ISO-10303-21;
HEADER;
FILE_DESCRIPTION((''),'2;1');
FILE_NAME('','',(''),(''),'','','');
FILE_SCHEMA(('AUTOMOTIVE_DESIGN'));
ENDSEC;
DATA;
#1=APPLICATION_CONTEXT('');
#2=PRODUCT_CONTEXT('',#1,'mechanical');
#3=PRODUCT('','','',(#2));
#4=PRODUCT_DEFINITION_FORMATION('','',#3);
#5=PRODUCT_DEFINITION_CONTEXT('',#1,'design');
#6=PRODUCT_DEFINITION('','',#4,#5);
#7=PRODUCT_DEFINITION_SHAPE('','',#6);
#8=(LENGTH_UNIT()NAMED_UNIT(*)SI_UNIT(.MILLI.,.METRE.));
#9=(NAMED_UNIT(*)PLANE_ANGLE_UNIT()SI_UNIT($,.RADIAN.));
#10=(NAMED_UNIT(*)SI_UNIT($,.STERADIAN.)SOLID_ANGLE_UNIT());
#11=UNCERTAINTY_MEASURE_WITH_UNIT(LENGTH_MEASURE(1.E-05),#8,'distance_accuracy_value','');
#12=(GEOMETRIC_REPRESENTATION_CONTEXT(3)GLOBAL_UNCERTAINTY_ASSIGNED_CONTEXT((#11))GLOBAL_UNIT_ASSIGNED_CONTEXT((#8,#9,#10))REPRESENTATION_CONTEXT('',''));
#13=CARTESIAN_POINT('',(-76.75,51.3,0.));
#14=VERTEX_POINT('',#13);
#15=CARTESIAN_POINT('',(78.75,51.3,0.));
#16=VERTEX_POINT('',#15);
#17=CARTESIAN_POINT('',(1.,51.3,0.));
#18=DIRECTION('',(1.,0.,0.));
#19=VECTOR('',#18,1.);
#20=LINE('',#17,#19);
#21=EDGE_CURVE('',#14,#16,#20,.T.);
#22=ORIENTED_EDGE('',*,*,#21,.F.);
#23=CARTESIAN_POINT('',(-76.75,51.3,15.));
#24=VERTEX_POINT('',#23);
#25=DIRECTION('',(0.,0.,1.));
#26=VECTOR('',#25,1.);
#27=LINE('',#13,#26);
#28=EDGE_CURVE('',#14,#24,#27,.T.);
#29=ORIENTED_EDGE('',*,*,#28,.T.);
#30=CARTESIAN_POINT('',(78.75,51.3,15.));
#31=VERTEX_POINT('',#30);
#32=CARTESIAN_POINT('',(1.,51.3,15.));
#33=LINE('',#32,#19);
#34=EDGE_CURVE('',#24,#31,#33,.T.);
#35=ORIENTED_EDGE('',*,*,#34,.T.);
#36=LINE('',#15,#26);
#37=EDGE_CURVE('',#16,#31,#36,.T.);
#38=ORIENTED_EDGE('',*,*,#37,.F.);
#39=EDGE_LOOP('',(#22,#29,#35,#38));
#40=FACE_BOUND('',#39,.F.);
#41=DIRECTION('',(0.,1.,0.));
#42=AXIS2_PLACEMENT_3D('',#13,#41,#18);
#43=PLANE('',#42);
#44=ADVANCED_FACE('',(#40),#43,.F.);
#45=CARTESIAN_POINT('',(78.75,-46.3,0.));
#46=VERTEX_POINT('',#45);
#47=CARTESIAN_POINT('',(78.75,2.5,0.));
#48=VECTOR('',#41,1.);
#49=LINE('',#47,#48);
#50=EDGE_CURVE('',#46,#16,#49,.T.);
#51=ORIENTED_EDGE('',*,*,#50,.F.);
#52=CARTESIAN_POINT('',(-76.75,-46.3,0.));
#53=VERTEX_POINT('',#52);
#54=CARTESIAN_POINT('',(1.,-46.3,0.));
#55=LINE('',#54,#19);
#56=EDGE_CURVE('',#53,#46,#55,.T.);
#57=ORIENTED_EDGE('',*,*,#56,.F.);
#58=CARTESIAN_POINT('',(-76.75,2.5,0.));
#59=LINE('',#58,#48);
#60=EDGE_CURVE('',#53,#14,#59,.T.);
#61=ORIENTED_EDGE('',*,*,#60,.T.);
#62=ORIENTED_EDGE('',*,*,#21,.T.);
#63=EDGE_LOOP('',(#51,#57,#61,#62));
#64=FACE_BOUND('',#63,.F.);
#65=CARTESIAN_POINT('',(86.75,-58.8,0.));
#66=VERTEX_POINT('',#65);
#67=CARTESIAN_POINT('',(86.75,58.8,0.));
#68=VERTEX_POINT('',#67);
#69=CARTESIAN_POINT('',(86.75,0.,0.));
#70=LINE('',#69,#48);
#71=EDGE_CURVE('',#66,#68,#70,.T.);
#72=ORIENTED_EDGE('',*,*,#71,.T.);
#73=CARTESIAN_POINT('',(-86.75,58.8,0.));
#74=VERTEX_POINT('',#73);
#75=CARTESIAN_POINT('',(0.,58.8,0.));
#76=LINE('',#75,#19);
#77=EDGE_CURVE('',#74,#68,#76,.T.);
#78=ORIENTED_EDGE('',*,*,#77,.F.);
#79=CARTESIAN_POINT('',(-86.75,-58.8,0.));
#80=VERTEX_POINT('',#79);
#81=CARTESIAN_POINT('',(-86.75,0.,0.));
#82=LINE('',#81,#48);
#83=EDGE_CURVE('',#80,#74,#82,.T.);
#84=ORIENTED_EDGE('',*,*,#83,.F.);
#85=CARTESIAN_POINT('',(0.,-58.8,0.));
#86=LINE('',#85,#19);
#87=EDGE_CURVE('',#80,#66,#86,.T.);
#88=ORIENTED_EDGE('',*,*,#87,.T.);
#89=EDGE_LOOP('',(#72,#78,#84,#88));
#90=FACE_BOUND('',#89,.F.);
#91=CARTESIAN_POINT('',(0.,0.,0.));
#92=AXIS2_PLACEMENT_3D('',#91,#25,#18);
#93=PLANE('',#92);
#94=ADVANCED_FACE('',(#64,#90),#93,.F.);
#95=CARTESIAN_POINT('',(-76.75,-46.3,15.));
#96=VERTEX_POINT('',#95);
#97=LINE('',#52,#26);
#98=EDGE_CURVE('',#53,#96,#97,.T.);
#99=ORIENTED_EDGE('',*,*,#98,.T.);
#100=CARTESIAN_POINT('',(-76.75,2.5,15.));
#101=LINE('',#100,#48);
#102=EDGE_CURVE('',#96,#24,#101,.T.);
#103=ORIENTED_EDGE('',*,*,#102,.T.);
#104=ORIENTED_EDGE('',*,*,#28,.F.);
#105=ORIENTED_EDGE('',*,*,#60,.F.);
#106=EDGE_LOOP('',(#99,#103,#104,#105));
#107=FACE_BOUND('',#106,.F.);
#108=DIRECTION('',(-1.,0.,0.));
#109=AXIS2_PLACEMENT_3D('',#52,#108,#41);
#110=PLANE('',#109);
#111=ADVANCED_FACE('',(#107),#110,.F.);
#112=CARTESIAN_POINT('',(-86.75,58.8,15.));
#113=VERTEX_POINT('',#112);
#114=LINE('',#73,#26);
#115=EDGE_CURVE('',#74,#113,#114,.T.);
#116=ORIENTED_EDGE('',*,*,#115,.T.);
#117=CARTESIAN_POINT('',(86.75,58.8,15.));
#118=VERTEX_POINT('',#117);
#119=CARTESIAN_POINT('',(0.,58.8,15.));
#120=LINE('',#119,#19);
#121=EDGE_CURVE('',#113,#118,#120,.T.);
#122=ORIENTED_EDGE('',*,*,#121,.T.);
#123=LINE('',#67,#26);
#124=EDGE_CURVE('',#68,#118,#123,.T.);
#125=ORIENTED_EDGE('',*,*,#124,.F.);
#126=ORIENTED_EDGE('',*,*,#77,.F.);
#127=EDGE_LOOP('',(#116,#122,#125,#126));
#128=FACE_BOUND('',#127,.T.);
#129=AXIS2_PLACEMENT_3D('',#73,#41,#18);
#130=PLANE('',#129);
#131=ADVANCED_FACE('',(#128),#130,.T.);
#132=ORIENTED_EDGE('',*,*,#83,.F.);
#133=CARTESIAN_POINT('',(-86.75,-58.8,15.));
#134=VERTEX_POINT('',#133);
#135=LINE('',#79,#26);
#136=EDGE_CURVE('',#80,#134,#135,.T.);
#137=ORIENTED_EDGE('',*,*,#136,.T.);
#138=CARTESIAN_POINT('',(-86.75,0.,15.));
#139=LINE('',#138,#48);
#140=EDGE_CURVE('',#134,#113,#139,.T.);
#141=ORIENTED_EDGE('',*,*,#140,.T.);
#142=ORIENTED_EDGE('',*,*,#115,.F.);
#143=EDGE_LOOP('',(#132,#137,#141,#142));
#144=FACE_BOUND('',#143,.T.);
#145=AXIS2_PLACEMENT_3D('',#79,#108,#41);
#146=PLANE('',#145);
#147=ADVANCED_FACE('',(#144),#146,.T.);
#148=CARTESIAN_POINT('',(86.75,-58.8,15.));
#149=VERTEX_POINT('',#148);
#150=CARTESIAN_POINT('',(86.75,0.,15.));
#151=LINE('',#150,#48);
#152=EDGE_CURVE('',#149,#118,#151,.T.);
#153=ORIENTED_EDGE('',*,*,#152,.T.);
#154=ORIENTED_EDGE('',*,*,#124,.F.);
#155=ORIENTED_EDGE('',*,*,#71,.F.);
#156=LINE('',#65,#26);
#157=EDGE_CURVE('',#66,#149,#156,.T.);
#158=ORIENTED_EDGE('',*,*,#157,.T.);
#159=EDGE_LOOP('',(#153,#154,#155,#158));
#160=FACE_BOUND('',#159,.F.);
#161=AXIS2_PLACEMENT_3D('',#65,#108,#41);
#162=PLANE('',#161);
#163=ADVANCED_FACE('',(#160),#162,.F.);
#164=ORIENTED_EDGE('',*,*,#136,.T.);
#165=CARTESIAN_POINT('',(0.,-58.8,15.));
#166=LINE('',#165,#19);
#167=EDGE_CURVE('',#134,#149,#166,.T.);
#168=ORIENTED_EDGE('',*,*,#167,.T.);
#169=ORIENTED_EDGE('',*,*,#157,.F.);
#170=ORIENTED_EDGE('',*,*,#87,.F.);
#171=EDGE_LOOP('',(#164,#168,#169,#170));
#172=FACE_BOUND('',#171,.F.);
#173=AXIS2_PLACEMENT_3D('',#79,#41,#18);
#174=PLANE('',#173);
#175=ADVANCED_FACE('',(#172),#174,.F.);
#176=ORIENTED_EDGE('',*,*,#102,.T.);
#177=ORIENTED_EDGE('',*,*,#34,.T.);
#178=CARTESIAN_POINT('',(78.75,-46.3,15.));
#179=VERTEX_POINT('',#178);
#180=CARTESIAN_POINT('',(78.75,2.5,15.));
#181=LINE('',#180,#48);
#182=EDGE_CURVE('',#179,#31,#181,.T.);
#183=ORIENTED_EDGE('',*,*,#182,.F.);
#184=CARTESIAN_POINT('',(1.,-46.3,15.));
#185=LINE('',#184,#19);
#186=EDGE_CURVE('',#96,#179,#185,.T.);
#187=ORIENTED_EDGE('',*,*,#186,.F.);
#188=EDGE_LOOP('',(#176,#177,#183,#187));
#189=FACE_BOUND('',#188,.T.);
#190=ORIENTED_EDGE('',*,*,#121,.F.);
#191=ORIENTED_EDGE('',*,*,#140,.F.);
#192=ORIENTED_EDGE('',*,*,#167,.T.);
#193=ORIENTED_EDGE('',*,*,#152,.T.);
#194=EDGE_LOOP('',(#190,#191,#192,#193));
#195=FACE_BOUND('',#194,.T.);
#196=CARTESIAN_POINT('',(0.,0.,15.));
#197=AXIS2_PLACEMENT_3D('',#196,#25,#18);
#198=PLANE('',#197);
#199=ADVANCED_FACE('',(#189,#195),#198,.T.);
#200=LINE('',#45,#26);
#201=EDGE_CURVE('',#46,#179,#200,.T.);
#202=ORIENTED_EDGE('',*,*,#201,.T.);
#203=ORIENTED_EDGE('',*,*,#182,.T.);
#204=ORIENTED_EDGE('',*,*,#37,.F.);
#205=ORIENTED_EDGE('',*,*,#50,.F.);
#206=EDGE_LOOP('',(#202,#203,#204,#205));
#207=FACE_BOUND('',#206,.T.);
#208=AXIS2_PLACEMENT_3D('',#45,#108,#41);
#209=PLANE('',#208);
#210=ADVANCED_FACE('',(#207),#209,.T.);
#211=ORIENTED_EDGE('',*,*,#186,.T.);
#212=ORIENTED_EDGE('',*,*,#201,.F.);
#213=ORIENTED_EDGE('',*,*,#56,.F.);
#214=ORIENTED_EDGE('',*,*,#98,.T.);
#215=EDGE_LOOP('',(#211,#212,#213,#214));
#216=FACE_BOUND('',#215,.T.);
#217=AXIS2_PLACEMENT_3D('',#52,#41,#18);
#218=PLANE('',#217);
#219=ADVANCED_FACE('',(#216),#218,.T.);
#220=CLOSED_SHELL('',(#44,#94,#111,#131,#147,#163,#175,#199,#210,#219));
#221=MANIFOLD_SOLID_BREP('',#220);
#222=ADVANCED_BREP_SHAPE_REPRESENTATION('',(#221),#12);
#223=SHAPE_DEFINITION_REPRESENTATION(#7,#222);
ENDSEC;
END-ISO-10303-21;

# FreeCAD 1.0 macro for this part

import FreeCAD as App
import Part
import Sketcher
from FreeCAD import Vector
Q = App.Units.Quantity


def add_polygon(sketch, points):
    """Adds a closed chain of lines whose ends are joined by coincident constraints."""
    first, n = sketch.GeometryCount, len(points)
    for a, b in zip(points, points[1:] + points[:1]):
        sketch.addGeometry(Part.LineSegment(App.Vector(*a, 0), App.Vector(*b, 0)), False)
    for i in range(n):
        sketch.addConstraint(Sketcher.Constraint("Coincident", first + i, 2, first + (i + 1) % n, 1))

doc = App.newDocument("Part")
body = doc.addObject("PartDesign::Body", "Body")

sketch1 = doc.addObject("Sketcher::SketchObject", "Sketch")
body.addObject(sketch1)
sketch1.AttachmentSupport = (doc.XY_Plane, [""])
sketch1.MapMode = "FlatFace"
add_polygon(sketch1, [(-86.75, 58.8), (-86.75, -58.8), (86.75, -58.8), (86.75, 58.8)])
sketch1.addConstraint([
    Sketcher.Constraint("Vertical", 0),
    Sketcher.Constraint("Horizontal", 1),
    Sketcher.Constraint("Vertical", 2),
    Sketcher.Constraint("Horizontal", 3),
    Sketcher.Constraint("Symmetric", 0, 2, 2, 2, -1, 1),
    Sketcher.Constraint("DistanceX", 1, 1, 1, 2, Q("173.5 mm")),
    Sketcher.Constraint("DistanceY", 0, 2, 0, 1, Q("117.6 mm")),
])
pad1 = doc.addObject("PartDesign::Pad", "Pad")
body.addObject(pad1)
pad1.Profile = sketch1
pad1.Length = 15

sketch2 = doc.addObject("Sketcher::SketchObject", "Sketch001")
body.addObject(sketch2)
sketch2.AttachmentSupport = (doc.XY_Plane, [""])
sketch2.MapMode = "FlatFace"
add_polygon(sketch2, [(-76.75, 51.3), (-76.75, -46.3), (78.75, -46.3), (78.75, 51.3)])
sketch2.addConstraint([
    Sketcher.Constraint("Vertical", 0),
    Sketcher.Constraint("Horizontal", 1),
    Sketcher.Constraint("Vertical", 2),
    Sketcher.Constraint("Horizontal", 3),
    Sketcher.Constraint("DistanceX", 1, 1, 1, 2, Q("155.5 mm")),
    Sketcher.Constraint("DistanceY", 0, 2, 0, 1, Q("97.6 mm")),
    Sketcher.Constraint("DistanceY", 0, 2, -1, 1, Q("46.3 mm")),
    Sketcher.Constraint("DistanceX", 0, 2, -1, 1, Q("76.75 mm")),
])
pocket1 = doc.addObject("PartDesign::Pocket", "Pocket")
body.addObject(pocket1)
pocket1.Profile = sketch2
pocket1.Length = 15
pocket1.Reversed = True

sketch3 = doc.addObject("Sketcher::SketchObject", "Sketch002")
body.addObject(sketch3)
sketch3.AttachmentSupport = (doc.XY_Plane, [""])
sketch3.MapMode = "FlatFace"
add_polygon(sketch3, [(-80.75, 52.8), (-80.75, -52.8), (80.75, -52.8), (80.75, 52.8)])
sketch3.addConstraint([
    Sketcher.Constraint("Vertical", 0),
    Sketcher.Constraint("Horizontal", 1),
    Sketcher.Constraint("Vertical", 2),
    Sketcher.Constraint("Horizontal", 3),
    Sketcher.Constraint("Symmetric", 0, 2, 2, 2, -1, 1),
    Sketcher.Constraint("DistanceX", 1, 1, 1, 2, Q("161.5 mm")),
    Sketcher.Constraint("DistanceY", 0, 2, 0, 1, Q("105.6 mm")),
])
pocket2 = doc.addObject("PartDesign::Pocket", "Pocket001")
body.addObject(pocket2)
pocket2.Profile = sketch3
pocket2.Length = 13

doc.recompute()
